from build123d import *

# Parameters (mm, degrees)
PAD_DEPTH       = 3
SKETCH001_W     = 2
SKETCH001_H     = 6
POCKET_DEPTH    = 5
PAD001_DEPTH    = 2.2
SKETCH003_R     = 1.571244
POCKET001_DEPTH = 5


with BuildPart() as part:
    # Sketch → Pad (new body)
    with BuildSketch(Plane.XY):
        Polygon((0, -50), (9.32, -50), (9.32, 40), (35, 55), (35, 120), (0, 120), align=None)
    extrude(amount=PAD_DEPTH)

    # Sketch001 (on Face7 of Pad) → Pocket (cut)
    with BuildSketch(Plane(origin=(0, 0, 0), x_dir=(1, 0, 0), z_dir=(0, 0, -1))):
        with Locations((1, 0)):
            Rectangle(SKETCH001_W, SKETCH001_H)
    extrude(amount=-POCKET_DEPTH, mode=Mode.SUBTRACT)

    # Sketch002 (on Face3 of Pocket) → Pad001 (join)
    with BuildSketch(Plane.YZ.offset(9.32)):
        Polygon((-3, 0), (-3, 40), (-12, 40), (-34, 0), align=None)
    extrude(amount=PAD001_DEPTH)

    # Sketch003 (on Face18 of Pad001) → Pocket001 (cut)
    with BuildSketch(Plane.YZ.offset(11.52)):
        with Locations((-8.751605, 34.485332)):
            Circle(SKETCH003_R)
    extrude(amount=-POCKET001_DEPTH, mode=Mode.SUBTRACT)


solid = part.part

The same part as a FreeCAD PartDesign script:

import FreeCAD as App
import Part
import Sketcher

V = App.Vector
Q = App.Units.Quantity

doc = App.newDocument("Part")
body = doc.addObject("PartDesign::Body", "Body")

# Sketch on XY plane
sketch1 = body.newObject("Sketcher::SketchObject", "Sketch")
sketch1.AttachmentSupport = (doc.getObject("XY_Plane"), [""])
sketch1.MapMode = "FlatFace"
sketch1.addGeometry([
    Part.LineSegment(V(0, -50, 0), V(9, -50, 0)),  # 0
    Part.LineSegment(V(9, -50, 0), V(9, 40, 0)),  # 1
    Part.LineSegment(V(9, 40, 0), V(35, 55, 0)),  # 2
    Part.LineSegment(V(35, 55, 0), V(35, 120, 0)),  # 3
    Part.LineSegment(V(35, 120, 0), V(0, 120, 0)),  # 4
    Part.LineSegment(V(0, 120, 0), V(0, -50, 0)),  # 5
], False)
sketch1.addConstraint([
    Sketcher.Constraint("Coincident", 0, 2, 1, 1),
    Sketcher.Constraint("Coincident", 1, 2, 2, 1),
    Sketcher.Constraint("Coincident", 2, 2, 3, 1),
    Sketcher.Constraint("Coincident", 3, 2, 4, 1),
    Sketcher.Constraint("Coincident", 4, 2, 5, 1),
    Sketcher.Constraint("Coincident", 5, 2, 0, 1),
    Sketcher.Constraint("Horizontal", 0),
    Sketcher.Constraint("Vertical", 1),
    Sketcher.Constraint("Vertical", 3),
    Sketcher.Constraint("Horizontal", 4),
    Sketcher.Constraint("Vertical", 5),
    Sketcher.Constraint("PointOnObject", 4, 2, -2),
    Sketcher.Constraint("DistanceX", 4, 2, 4, 1, Q("35 mm")),
    Sketcher.Constraint("DistanceY", 1, 1, 1, 2, Q("90 mm")),
    Sketcher.Constraint("DistanceY", 3, 1, 3, 2, Q("65 mm")),
    Sketcher.Constraint("DistanceY", 5, 2, 5, 1, Q("170 mm")),
    Sketcher.Constraint("DistanceY", 0, 2, -1, 1, Q("50 mm")),
    Sketcher.Constraint("DistanceX", 0, 1, 0, 2, Q("9.32 mm")),
])
pad1 = body.newObject("PartDesign::Pad", "Pad")
pad1.Profile = sketch1
pad1.Length = 3

# Sketch on XY plane
sketch2 = body.newObject("Sketcher::SketchObject", "Sketch001")
sketch2.AttachmentSupport = (doc.getObject("XY_Plane"), [""])
sketch2.MapMode = "FlatFace"
sketch2.addGeometry([
    Part.LineSegment(V(0, -3, 0), V(0, 3, 0)),
    Part.LineSegment(V(0, 3, 0), V(2, 3, 0)),
    Part.LineSegment(V(2, 3, 0), V(2, -3, 0)),
    Part.LineSegment(V(2, -3, 0), V(0, -3, 0)),
], False)
sketch2.addConstraint([
    Sketcher.Constraint("Coincident", 0, 2, 1, 1),
    Sketcher.Constraint("Coincident", 1, 2, 2, 1),
    Sketcher.Constraint("Coincident", 2, 2, 3, 1),
    Sketcher.Constraint("Coincident", 3, 2, 0, 1),
    Sketcher.Constraint("Vertical", 0),
    Sketcher.Constraint("Horizontal", 1),
    Sketcher.Constraint("Vertical", 2),
    Sketcher.Constraint("Horizontal", 3),
    Sketcher.Constraint("Symmetric", 0, 2, 3, 2, -1, 1),
    Sketcher.Constraint("DistanceX", 1, 1, 1, 2, Q("2 mm")),
    Sketcher.Constraint("DistanceY", 0, 1, 0, 2, Q("6 mm")),
])
pocket1 = body.newObject("PartDesign::Pocket", "Pocket")
pocket1.Profile = sketch2
pocket1.Length = 5
pocket1.Reversed = True

# Sketch on YZ plane
sketch3 = body.newObject("Sketcher::SketchObject", "Sketch002")
sketch3.AttachmentSupport = (doc.getObject("YZ_Plane"), [""])
sketch3.MapMode = "FlatFace"
sketch3.AttachmentOffset = App.Placement(V(0, 0, 9.32), App.Rotation())
sketch3.addGeometry([
    Part.LineSegment(V(-3, 0, 0), V(-3, 40, 0)),
    Part.LineSegment(V(-3, 40, 0), V(-12, 40, 0)),
    Part.LineSegment(V(-12, 40, 0), V(-34, 0, 0)),
    Part.LineSegment(V(-34, 0, 0), V(-3, 0, 0)),
], False)
sketch3.addConstraint([
    Sketcher.Constraint("Coincident", 0, 2, 1, 1),
    Sketcher.Constraint("Coincident", 1, 2, 2, 1),
    Sketcher.Constraint("Coincident", 2, 2, 3, 1),
    Sketcher.Constraint("Coincident", 3, 2, 0, 1),
    Sketcher.Constraint("Vertical", 0),
    Sketcher.Constraint("Horizontal", 1),
    Sketcher.Constraint("Horizontal", 3),
    Sketcher.Constraint("PointOnObject", 2, 2, -1),
    Sketcher.Constraint("DistanceX", 1, 2, 1, 1, Q("9 mm")),
    Sketcher.Constraint("DistanceX", 3, 1, 3, 2, Q("31 mm")),
    Sketcher.Constraint("DistanceY", 0, 1, 0, 2, Q("40 mm")),
    Sketcher.Constraint("DistanceX", 0, 2, -1, 1, Q("3 mm")),
])
pad2 = body.newObject("PartDesign::Pad", "Pad001")
pad2.Profile = sketch3
pad2.Length = 2.2

# Sketch on YZ plane
sketch4 = body.newObject("Sketcher::SketchObject", "Sketch003")
sketch4.AttachmentSupport = (doc.getObject("YZ_Plane"), [""])
sketch4.MapMode = "FlatFace"
sketch4.AttachmentOffset = App.Placement(V(0, 0, 11.52), App.Rotation())
sketch4.addGeometry(Part.Circle(V(-8.8, 34.5, 0), V(0, 0, 1), 1.6), False)
sketch4.addConstraint([
    Sketcher.Constraint("Diameter", 0, Q("3.142488 mm")),
    Sketcher.Constraint("DistanceX", 0, 3, -1, 1, Q("8.751605 mm")),
    Sketcher.Constraint("DistanceY", -1, 1, 0, 3, Q("34.485332 mm")),
])
pocket2 = body.newObject("PartDesign::Pocket", "Pocket001")
pocket2.Profile = sketch4
pocket2.Length = 5

doc.recompute()
